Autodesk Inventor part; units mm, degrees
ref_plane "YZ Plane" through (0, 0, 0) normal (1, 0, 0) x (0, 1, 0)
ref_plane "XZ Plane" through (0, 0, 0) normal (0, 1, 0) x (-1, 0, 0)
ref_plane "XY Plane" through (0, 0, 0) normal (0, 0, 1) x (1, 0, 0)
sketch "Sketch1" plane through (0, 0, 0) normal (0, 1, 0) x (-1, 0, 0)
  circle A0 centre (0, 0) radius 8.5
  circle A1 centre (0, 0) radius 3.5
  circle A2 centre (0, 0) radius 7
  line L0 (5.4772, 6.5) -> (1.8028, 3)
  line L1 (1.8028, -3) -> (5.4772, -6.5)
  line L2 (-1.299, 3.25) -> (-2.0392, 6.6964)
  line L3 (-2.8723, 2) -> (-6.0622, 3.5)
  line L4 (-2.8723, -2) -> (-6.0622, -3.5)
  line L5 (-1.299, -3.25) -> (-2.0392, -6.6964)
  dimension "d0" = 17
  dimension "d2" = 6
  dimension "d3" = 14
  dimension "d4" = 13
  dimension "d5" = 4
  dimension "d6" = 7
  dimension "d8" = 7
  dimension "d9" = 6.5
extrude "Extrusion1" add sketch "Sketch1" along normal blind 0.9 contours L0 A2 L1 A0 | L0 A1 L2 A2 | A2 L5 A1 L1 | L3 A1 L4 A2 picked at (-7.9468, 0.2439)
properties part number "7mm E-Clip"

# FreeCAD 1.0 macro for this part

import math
import FreeCAD as App
import Part
import Sketcher
from FreeCAD import Vector
Q = App.Units.Quantity

doc = App.newDocument("Part")
body = doc.addObject("PartDesign::Body", "Body")

# Sketch on XZ plane
sketch1 = body.newObject("Sketcher::SketchObject", "Sketch")
sketch1.AttachmentSupport = (doc.getObject("XZ_Plane"), [""])
sketch1.MapMode = "FlatFace"
sketch1.addGeometry([
    Part.ArcOfCircle(Part.Circle(Vector(0, 0, 0), Vector(0, 0, 1), 8.5), math.radians(-130.119035), math.radians(130.119035)),  # 0
    Part.LineSegment(Vector(-5.4772, -6.5, 0), Vector(-1.8028, -3, 0)),  # 1
    Part.ArcOfCircle(Part.Circle(Vector(0, 0, 0), Vector(0, 0, 1), 3.5), math.radians(-121.003061), math.radians(-68.21379)),  # 2
    Part.LineSegment(Vector(1.299, -3.25, 0), Vector(2.0392, -6.6964, 0)),  # 3
    Part.ArcOfCircle(Part.Circle(Vector(0, 0, 0), Vector(0, 0, 1), 7), math.radians(-73.063363), math.radians(-29.999909)),  # 4
    Part.LineSegment(Vector(6.0622, -3.5, 0), Vector(2.8723, -2, 0)),  # 5
    Part.ArcOfCircle(Part.Circle(Vector(0, 0, 0), Vector(0, 0, 1), 3.5), math.radians(-34.84973), math.radians(34.84973)),  # 6
    Part.LineSegment(Vector(2.8723, 2, 0), Vector(6.0622, 3.5, 0)),  # 7
    Part.ArcOfCircle(Part.Circle(Vector(0, 0, 0), Vector(0, 0, 1), 7), math.radians(29.999909), math.radians(73.063363)),  # 8
    Part.LineSegment(Vector(2.0392, 6.6964, 0), Vector(1.299, 3.25, 0)),  # 9
    Part.ArcOfCircle(Part.Circle(Vector(0, 0, 0), Vector(0, 0, 1), 3.5), math.radians(68.21379), math.radians(121.003061)),  # 10
    Part.LineSegment(Vector(-1.8028, 3, 0), Vector(-5.4772, 6.5, 0)),  # 11
], False)
sketch1.addConstraint([
    Sketcher.Constraint("Coincident", 0, 1, 1, 1),
    Sketcher.Constraint("Coincident", 1, 2, 2, 1),
    Sketcher.Constraint("Coincident", 2, 2, 3, 1),
    Sketcher.Constraint("Coincident", 3, 2, 4, 1),
    Sketcher.Constraint("Coincident", 4, 2, 5, 1),
    Sketcher.Constraint("Coincident", 5, 2, 6, 1),
    Sketcher.Constraint("Coincident", 6, 2, 7, 1),
    Sketcher.Constraint("Coincident", 7, 2, 8, 1),
    Sketcher.Constraint("Coincident", 8, 2, 9, 1),
    Sketcher.Constraint("Coincident", 9, 2, 10, 1),
    Sketcher.Constraint("Coincident", 10, 2, 11, 1),
    Sketcher.Constraint("Coincident", 11, 2, 0, 2),
    Sketcher.Constraint("Coincident", 0, 3, -1, 1),
    Sketcher.Constraint("Coincident", 2, 3, -1, 1),
    Sketcher.Constraint("Coincident", 4, 3, -1, 1),
    Sketcher.Constraint("Coincident", 6, 3, -1, 1),
    Sketcher.Constraint("Coincident", 8, 3, -1, 1),
    Sketcher.Constraint("Coincident", 10, 3, -1, 1),
    Sketcher.Constraint("Equal", 2, 6),
    Sketcher.Constraint("Equal", 4, 8),
    Sketcher.Constraint("Equal", 6, 10),
    Sketcher.Constraint("Vertical", 5, 2, 6, 2),
    Sketcher.Constraint("Vertical", 4, 2, 7, 2),
    Sketcher.Constraint("Vertical", 3, 2, 8, 2),
    Sketcher.Constraint("Vertical", 2, 2, 9, 2),
    Sketcher.Constraint("Vertical", 1, 2, 10, 2),
    Sketcher.Constraint("Vertical", 0, 1, 11, 2),
    Sketcher.Constraint("Equal", 3, 5),
    Sketcher.Constraint("Radius", 4, Q("7 mm")),
    Sketcher.Constraint("Radius", 0, Q("8.5 mm")),
    Sketcher.Constraint("Radius", 2, Q("3.5 mm")),
    Sketcher.Constraint("DistanceY", 4, 2, 7, 2, Q("7 mm")),
    Sketcher.Constraint("DistanceY", 0, 1, -1, 1, Q("6.5 mm")),
    Sketcher.Constraint("DistanceY", 1, 2, -1, 1, Q("3 mm")),
    Sketcher.Constraint("DistanceY", 5, 2, -1, 1, Q("2 mm")),
    Sketcher.Constraint("DistanceY", 2, 2, -1, 1, Q("3.25 mm")),
])
pad1 = body.newObject("PartDesign::Pad", "Pad")
pad1.Profile = sketch1
pad1.Length = 0.9
pad1.Reversed = True

doc.recompute()
